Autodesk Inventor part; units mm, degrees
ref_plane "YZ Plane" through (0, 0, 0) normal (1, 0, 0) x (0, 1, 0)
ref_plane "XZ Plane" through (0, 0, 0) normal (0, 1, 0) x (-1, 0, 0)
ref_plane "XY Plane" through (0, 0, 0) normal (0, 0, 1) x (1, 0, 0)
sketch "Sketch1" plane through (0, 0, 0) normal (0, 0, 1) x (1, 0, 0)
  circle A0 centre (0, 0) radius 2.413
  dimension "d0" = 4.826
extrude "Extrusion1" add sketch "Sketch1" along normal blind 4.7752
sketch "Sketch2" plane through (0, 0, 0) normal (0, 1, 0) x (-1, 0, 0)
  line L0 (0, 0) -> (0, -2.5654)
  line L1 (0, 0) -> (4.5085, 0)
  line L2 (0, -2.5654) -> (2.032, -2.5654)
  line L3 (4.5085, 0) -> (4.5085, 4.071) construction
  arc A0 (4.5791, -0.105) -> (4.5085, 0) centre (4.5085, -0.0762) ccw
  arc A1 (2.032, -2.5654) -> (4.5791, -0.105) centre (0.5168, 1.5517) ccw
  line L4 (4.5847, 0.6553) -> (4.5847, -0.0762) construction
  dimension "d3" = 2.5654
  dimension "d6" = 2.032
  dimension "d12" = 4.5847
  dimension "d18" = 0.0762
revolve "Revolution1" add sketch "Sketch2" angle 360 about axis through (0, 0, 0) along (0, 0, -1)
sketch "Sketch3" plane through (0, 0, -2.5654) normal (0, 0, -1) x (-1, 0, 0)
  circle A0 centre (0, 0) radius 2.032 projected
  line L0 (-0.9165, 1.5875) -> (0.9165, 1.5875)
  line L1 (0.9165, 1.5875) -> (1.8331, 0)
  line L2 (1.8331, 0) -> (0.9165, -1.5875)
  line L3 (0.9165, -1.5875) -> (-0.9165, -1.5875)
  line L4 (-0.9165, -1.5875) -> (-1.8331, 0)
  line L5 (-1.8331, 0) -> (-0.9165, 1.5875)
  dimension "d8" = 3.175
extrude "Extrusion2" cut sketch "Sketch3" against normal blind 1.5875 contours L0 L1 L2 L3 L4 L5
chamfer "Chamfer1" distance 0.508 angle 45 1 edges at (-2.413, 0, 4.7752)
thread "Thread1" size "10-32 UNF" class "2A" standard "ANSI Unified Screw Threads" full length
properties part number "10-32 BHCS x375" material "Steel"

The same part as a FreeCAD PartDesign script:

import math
import FreeCAD as App
import Part
import Sketcher
from FreeCAD import Vector
Q = App.Units.Quantity


def edges_at(feature, points):
    """Names of the edges that pass closest to the given points."""
    edges = feature.Shape.Edges
    near = lambda p: min(range(len(edges)), key=lambda i: edges[i].distToShape(Part.Vertex(*p))[0])
    return sorted({f"Edge{near(p) + 1}" for p in points})

doc = App.newDocument("Part")
body = doc.addObject("PartDesign::Body", "Body")

sketch1 = doc.addObject("Sketcher::SketchObject", "Sketch")
body.addObject(sketch1)
sketch1.AttachmentSupport = (doc.XY_Plane, [""])
sketch1.MapMode = "FlatFace"
sketch1.addGeometry(Part.Circle(Vector(0, 0, 0), Vector(0, 0, 1), 2.413), False)
sketch1.addConstraint([
    Sketcher.Constraint("Coincident", 0, 3, -1, 1),
    Sketcher.Constraint("Diameter", 0, Q("0.19 in")),
])
pad1 = doc.addObject("PartDesign::Pad", "Pad")
body.addObject(pad1)
pad1.Profile = sketch1
pad1.Length = Q("0.188 in")

sketch2 = doc.addObject("Sketcher::SketchObject", "Sketch001")
body.addObject(sketch2)
sketch2.AttachmentSupport = (doc.XZ_Plane, [""])
sketch2.MapMode = "FlatFace"
sketch2.addGeometry([
    Part.LineSegment(Vector(-4.5085, 0, 0), Vector(0, 0, 0)),
    Part.LineSegment(Vector(0, 0, 0), Vector(0, -2.5654, 0)),
    Part.LineSegment(Vector(0, -2.5654, 0), Vector(-2.032, -2.5654, 0)),
    Part.ArcOfCircle(Part.Circle(Vector(-0.5168, 1.5517, 0), Vector(0, 0, 1), 4.387065), math.radians(-157.813228), math.radians(-110.204929)),
    Part.ArcOfCircle(Part.Circle(Vector(-4.5085, -0.0762, 0), Vector(0, 0, 1), 0.076248), math.radians(90), math.radians(202.19212)),
], False)
sketch2.addConstraint([
    Sketcher.Constraint("Coincident", 0, 2, 1, 1),
    Sketcher.Constraint("Coincident", 1, 2, 2, 1),
    Sketcher.Constraint("Coincident", 2, 2, 3, 2),
    Sketcher.Constraint("Tangent", 3, 1, 4, 2),
    Sketcher.Constraint("Tangent", 4, 1, 0, 1),
    Sketcher.Constraint("Horizontal", 0),
    Sketcher.Constraint("Vertical", 1),
    Sketcher.Constraint("Horizontal", 2),
    Sketcher.Constraint("Coincident", 0, 2, -1, 1),
    Sketcher.Constraint("Radius", 4, Q("0.003 in")),
    Sketcher.Constraint("DistanceX", 2, 2, 2, 1, Q("0.08 in")),
    Sketcher.Constraint("DistanceY", 1, 2, 1, 1, Q("0.101 in")),
    Sketcher.Constraint("Radius", 3, 4.387),
    Sketcher.Constraint("DistanceX", 0, 1, 0, 2, Q("0.1775 in")),
])
revolution = doc.addObject("PartDesign::Revolution", "Revolution")
body.addObject(revolution)
revolution.Profile = sketch2
revolution.ReferenceAxis = (sketch2, ["V_Axis"])
revolution.Angle = 360

sketch3 = doc.addObject("Sketcher::SketchObject", "Sketch002")
body.addObject(sketch3)
sketch3.AttachmentSupport = (doc.XY_Plane, [""])
sketch3.MapMode = "FlatFace"
sketch3.AttachmentOffset = App.Placement(Vector(0, 0, -0.101 * 25.4), App.Rotation())
sketch3.addGeometry([
    Part.LineSegment(Vector(-0.9165, 1.5875, 0), Vector(0.9165, 1.5875, 0)),
    Part.LineSegment(Vector(0.9165, 1.5875, 0), Vector(1.8331, 0, 0)),
    Part.LineSegment(Vector(1.8331, 0, 0), Vector(0.9165, -1.5875, 0)),
    Part.LineSegment(Vector(0.9165, -1.5875, 0), Vector(-0.9165, -1.5875, 0)),
    Part.LineSegment(Vector(-0.9165, -1.5875, 0), Vector(-1.8331, 0, 0)),
    Part.LineSegment(Vector(-1.8331, 0, 0), Vector(-0.9165, 1.5875, 0)),
], False)
sketch3.addConstraint([
    Sketcher.Constraint("Coincident", 0, 2, 1, 1),
    Sketcher.Constraint("Coincident", 1, 2, 2, 1),
    Sketcher.Constraint("Coincident", 2, 2, 3, 1),
    Sketcher.Constraint("Coincident", 3, 2, 4, 1),
    Sketcher.Constraint("Coincident", 4, 2, 5, 1),
    Sketcher.Constraint("Coincident", 5, 2, 0, 1),
    Sketcher.Constraint("Horizontal", 0),
    Sketcher.Constraint("Horizontal", 3),
    Sketcher.Constraint("Symmetric", 0, 2, 3, 2, -1, 1),
    Sketcher.Constraint("Symmetric", 1, 2, 4, 2, -1, 1),
    Sketcher.Constraint("PointOnObject", 1, 2, -1),
    Sketcher.Constraint("Parallel", 2, 5),
    Sketcher.Constraint("Vertical", 0, 2, 2, 2),
    Sketcher.Constraint("DistanceY", 2, 2, 0, 2, Q("0.125 in")),
    Sketcher.Constraint("DistanceX", 0, 1, 0, 2, 1.833),
    Sketcher.Constraint("Distance", 1, 1.833),
])
pocket1 = doc.addObject("PartDesign::Pocket", "Pocket")
body.addObject(pocket1)
pocket1.Profile = sketch3
pocket1.Length = Q("0.0625 in")
pocket1.Reversed = True
doc.recompute()

chamfer = doc.addObject("PartDesign::Chamfer", "Chamfer")
body.addObject(chamfer)
chamfer.Base = (pocket1, edges_at(pocket1, [(-2.413, 0, 4.775)]))
chamfer.Size = Q("0.02 in")

doc.recompute()
